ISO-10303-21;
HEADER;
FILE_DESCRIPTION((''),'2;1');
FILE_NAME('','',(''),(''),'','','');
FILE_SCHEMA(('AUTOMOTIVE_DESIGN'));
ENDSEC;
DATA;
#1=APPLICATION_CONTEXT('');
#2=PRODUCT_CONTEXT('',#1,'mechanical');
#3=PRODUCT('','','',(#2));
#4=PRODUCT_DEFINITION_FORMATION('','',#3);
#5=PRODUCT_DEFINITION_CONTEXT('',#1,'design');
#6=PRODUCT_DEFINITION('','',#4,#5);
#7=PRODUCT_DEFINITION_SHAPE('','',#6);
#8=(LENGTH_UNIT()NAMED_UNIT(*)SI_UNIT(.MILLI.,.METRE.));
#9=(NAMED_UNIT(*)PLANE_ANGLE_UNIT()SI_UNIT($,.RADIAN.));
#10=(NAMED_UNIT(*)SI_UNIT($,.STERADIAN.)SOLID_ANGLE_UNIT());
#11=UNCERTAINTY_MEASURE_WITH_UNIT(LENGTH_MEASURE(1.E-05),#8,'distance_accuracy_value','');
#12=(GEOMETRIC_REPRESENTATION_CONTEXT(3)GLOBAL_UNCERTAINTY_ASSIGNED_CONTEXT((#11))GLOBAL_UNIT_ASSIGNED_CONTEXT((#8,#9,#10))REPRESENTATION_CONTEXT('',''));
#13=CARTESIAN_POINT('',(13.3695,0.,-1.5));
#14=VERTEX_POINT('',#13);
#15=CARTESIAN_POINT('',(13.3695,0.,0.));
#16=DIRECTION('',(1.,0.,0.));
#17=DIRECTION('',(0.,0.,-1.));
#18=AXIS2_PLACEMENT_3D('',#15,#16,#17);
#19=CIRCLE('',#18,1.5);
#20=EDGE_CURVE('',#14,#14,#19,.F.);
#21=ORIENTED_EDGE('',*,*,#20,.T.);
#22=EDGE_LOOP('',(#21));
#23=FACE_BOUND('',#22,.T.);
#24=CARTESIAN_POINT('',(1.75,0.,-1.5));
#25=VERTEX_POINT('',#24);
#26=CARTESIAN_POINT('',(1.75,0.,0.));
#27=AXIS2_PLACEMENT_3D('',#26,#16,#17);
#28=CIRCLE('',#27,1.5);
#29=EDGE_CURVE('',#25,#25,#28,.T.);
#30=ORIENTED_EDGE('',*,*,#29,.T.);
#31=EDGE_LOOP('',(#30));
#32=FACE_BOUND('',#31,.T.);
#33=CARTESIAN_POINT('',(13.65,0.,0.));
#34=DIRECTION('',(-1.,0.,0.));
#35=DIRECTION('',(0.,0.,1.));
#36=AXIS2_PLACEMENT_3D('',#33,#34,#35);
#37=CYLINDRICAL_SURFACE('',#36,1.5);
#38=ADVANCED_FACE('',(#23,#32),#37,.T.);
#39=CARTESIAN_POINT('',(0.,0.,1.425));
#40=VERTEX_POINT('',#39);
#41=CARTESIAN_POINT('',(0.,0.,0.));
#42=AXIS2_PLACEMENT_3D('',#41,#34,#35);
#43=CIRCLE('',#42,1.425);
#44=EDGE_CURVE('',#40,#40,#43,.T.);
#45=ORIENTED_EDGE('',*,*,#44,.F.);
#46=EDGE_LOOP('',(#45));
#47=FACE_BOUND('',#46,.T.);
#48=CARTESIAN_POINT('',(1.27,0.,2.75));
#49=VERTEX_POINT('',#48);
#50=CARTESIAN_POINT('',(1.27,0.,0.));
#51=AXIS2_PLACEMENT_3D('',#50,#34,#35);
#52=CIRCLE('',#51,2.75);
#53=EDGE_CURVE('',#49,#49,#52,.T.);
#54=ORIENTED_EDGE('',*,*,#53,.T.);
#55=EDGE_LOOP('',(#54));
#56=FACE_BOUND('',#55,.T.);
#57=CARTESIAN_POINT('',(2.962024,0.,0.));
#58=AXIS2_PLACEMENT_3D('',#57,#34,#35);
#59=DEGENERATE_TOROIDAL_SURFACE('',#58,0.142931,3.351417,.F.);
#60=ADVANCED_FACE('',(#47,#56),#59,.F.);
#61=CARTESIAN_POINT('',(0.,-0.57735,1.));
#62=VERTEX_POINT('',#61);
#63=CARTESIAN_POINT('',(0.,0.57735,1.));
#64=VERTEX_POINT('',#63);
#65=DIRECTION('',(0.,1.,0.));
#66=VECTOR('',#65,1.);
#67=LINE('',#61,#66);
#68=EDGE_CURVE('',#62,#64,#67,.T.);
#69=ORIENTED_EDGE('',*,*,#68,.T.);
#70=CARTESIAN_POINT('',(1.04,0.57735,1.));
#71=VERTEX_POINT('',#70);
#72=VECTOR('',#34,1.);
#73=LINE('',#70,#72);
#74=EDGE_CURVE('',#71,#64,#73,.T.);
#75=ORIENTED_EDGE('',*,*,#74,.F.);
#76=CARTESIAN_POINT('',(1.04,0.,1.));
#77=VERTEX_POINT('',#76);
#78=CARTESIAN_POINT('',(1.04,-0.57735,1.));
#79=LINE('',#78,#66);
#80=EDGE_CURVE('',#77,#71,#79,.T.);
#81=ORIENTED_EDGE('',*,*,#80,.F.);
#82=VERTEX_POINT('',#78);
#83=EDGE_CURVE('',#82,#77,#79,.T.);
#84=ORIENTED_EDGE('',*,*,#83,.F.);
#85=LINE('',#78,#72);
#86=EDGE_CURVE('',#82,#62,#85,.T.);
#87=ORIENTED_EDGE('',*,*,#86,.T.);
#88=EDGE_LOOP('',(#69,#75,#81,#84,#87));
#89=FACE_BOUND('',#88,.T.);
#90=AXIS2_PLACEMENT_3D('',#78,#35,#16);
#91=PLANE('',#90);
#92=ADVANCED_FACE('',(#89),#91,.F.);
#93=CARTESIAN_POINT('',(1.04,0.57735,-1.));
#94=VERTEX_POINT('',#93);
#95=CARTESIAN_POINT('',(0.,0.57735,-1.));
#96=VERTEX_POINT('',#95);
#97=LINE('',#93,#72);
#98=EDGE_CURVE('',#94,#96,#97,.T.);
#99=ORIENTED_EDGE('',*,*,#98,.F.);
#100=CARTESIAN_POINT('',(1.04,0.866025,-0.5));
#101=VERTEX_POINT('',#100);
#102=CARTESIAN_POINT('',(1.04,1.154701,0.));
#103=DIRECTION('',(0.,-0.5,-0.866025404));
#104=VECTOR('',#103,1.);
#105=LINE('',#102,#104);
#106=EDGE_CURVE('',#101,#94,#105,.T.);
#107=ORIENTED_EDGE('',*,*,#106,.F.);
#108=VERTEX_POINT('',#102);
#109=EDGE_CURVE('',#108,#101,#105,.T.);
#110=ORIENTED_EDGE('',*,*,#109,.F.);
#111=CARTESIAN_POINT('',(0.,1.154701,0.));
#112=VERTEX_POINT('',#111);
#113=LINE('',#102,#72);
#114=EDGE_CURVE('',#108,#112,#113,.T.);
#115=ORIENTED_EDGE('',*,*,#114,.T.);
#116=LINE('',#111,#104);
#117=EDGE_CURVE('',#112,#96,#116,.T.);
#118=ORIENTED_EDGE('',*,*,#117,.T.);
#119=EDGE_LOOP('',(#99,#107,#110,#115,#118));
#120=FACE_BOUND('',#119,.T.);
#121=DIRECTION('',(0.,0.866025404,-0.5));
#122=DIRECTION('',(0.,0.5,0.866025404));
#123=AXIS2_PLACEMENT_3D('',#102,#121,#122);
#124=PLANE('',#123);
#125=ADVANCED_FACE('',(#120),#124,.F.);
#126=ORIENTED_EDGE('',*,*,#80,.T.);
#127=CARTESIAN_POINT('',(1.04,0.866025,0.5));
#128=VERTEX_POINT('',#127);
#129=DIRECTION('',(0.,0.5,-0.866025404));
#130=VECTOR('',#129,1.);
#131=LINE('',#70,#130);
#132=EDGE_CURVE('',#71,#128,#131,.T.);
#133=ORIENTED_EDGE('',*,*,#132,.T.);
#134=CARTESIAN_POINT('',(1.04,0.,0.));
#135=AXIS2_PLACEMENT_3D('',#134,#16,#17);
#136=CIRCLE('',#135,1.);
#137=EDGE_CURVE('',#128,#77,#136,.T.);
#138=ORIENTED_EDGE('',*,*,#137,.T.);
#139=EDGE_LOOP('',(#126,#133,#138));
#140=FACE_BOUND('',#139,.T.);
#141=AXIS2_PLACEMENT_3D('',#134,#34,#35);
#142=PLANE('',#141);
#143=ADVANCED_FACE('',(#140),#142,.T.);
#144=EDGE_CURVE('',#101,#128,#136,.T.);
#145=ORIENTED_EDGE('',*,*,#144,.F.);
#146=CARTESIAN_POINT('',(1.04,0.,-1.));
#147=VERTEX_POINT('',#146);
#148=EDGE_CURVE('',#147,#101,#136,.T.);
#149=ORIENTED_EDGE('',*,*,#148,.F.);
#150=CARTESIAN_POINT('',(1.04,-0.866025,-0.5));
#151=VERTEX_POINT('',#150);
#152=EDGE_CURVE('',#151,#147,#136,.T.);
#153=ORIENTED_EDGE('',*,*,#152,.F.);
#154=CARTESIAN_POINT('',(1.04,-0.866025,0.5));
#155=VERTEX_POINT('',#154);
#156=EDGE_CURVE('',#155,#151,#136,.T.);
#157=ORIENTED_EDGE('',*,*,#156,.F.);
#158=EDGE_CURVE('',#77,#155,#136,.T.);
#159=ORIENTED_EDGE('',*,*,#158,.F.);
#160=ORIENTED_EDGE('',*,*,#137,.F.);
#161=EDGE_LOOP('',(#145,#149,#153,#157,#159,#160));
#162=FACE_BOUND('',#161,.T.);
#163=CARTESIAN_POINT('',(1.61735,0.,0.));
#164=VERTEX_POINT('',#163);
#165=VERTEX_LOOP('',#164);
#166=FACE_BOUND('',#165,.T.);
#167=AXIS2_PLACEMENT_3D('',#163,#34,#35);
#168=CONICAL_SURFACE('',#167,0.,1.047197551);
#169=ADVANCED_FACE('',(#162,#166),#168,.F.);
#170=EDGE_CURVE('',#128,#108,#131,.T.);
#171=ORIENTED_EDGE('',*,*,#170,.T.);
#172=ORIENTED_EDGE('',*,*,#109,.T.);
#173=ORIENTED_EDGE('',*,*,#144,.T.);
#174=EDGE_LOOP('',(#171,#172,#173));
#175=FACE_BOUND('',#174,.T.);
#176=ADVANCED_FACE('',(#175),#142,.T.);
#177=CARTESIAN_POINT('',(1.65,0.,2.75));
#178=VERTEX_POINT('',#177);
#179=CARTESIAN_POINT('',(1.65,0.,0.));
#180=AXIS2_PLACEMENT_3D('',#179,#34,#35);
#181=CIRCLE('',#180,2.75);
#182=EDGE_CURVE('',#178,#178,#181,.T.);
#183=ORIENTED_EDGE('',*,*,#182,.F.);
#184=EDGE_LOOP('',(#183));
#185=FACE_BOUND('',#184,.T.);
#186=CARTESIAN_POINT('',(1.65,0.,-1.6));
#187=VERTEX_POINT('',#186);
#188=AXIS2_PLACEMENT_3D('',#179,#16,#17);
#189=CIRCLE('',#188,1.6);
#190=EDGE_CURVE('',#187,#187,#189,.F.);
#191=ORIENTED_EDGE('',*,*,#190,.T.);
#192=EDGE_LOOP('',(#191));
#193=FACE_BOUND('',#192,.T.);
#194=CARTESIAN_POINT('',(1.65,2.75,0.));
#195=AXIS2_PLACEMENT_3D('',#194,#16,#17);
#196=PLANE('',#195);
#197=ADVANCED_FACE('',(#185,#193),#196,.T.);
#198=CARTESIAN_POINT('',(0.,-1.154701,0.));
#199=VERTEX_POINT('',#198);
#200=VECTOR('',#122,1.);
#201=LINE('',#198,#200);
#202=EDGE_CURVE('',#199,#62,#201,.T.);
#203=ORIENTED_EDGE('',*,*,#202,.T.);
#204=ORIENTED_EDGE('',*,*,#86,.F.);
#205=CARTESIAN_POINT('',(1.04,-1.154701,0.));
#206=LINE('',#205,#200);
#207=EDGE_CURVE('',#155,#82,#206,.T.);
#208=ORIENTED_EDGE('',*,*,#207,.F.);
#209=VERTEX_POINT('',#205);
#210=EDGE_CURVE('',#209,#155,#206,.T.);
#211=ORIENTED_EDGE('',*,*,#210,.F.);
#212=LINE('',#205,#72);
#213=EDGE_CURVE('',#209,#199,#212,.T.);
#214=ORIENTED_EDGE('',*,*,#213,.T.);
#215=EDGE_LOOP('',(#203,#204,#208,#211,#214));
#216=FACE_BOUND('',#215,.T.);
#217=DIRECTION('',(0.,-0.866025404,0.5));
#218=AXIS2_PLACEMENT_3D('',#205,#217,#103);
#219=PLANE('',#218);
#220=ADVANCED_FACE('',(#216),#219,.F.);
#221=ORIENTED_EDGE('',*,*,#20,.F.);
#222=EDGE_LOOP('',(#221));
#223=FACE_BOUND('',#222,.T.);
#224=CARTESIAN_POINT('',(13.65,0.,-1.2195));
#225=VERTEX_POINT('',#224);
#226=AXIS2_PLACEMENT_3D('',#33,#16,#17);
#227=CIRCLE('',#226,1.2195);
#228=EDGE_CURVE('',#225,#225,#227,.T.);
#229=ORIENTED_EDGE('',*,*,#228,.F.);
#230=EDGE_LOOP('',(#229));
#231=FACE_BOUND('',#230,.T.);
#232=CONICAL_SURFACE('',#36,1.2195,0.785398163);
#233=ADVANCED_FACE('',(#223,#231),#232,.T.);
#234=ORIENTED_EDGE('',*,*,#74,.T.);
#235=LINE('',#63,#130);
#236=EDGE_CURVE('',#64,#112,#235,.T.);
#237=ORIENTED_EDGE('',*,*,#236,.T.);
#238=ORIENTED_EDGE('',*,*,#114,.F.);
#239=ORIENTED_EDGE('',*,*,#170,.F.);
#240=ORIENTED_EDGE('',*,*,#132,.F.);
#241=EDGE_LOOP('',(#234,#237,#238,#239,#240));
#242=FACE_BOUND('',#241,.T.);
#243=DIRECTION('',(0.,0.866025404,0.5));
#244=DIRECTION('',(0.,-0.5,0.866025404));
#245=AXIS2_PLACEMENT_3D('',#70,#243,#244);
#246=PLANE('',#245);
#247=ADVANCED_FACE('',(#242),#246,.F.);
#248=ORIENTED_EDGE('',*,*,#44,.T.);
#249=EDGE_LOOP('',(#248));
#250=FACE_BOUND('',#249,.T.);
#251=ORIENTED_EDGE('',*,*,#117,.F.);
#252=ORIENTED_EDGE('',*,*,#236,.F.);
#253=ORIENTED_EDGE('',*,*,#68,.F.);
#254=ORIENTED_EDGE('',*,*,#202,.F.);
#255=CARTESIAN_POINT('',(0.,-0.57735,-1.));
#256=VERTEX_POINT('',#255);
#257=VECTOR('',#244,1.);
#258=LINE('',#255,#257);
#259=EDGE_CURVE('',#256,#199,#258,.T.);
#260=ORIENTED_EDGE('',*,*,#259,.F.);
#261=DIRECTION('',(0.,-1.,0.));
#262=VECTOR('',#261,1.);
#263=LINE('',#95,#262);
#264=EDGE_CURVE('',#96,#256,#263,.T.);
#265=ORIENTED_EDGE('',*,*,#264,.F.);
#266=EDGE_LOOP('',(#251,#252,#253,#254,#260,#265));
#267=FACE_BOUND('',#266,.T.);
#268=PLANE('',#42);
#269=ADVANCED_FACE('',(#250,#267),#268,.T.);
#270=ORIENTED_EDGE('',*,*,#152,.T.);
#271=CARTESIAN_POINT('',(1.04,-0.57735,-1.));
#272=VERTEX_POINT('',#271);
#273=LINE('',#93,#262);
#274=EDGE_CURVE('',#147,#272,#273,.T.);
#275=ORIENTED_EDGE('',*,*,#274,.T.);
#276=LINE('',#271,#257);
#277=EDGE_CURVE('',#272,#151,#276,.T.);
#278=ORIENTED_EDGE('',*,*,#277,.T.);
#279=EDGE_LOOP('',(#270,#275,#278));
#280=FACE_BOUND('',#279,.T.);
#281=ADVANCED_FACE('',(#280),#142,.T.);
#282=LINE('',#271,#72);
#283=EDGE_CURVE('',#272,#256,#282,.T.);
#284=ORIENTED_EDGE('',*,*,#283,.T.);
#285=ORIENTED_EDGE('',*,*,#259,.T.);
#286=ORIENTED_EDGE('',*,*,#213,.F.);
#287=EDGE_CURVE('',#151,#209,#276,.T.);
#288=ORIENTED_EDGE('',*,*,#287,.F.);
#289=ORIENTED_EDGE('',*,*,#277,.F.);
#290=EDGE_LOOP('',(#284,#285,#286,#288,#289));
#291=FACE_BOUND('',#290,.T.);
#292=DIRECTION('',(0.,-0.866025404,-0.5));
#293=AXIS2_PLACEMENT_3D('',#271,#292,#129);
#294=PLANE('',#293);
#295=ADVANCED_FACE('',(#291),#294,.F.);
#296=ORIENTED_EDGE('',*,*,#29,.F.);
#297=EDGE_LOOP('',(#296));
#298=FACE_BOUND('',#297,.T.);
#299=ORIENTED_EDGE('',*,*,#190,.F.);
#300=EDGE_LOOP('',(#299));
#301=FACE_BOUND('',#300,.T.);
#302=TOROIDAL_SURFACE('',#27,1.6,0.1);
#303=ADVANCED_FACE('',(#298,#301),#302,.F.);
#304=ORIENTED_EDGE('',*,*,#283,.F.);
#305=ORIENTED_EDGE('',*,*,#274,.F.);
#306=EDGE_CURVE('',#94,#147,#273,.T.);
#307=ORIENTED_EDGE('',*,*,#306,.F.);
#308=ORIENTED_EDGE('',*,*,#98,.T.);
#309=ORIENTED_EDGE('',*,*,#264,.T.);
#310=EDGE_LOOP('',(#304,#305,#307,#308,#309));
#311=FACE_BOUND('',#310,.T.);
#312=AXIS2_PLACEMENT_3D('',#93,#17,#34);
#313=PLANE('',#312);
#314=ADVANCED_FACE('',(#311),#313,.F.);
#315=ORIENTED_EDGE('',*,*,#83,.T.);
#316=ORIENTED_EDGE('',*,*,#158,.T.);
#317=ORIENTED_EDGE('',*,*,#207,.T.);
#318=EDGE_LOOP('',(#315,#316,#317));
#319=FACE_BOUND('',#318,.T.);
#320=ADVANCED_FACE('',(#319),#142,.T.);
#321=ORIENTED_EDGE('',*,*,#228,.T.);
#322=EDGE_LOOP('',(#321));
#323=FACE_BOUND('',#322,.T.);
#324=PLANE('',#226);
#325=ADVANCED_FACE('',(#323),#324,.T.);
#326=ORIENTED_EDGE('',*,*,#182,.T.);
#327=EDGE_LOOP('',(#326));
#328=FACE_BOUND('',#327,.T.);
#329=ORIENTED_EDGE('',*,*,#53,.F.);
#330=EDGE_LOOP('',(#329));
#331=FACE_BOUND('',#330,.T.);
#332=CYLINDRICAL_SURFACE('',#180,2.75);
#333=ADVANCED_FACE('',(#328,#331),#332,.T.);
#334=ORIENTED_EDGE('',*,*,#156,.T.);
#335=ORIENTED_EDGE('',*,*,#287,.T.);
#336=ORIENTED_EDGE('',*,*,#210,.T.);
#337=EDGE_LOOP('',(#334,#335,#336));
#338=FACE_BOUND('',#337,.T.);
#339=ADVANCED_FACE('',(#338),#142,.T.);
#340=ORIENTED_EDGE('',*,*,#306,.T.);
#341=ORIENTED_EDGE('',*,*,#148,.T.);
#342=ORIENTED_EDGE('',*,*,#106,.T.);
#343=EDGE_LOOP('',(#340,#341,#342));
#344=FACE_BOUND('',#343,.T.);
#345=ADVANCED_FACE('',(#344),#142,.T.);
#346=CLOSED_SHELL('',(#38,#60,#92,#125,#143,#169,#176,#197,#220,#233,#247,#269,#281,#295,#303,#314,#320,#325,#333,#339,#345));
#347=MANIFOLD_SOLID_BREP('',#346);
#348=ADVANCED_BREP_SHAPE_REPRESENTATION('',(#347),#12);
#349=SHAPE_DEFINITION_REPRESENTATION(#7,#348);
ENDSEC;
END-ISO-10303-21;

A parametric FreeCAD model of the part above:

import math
import FreeCAD as App
import Part
import Sketcher
from FreeCAD import Vector
Q = App.Units.Quantity


def edges_at(feature, points):
    """Names of the edges that pass closest to the given points."""
    edges = feature.Shape.Edges
    near = lambda p: min(range(len(edges)), key=lambda i: edges[i].distToShape(Part.Vertex(*p))[0])
    return sorted({f"Edge{near(p) + 1}" for p in points})

doc = App.newDocument("Part")
body = doc.addObject("PartDesign::Body", "Body")

# Sketch on XY plane
sketch1 = doc.addObject("Sketcher::SketchObject", "Sketch")
body.addObject(sketch1)
sketch1.AttachmentSupport = (doc.XY_Plane, [""])
sketch1.MapMode = "FlatFace"
sketch1.addGeometry([
    Part.LineSegment(Vector(1.65, 2.75, 0), Vector(1.65, 0, 0)),  # 0
    Part.LineSegment(Vector(1.65, 0, 0), Vector(0, 0, 0)),  # 1
    Part.LineSegment(Vector(0, 0, 0), Vector(0, 1.43, 0)),  # 2
    Part.ArcOfCircle(Part.Circle(Vector(2.96, -0.14, 0), Vector(0, 0, 1), 3.35), math.radians(120), math.radians(152)),  # 3
    Part.LineSegment(Vector(1.27, 2.75, 0), Vector(1.65, 2.75, 0)),  # 4
], False)
sketch1.addConstraint([
    Sketcher.Constraint("Coincident", 0, 2, 1, 1),
    Sketcher.Constraint("Coincident", 1, 2, 2, 1),
    Sketcher.Constraint("Coincident", 2, 2, 3, 2),
    Sketcher.Constraint("Coincident", 3, 1, 4, 1),
    Sketcher.Constraint("Coincident", 4, 2, 0, 1),
    Sketcher.Constraint("Vertical", 0),
    Sketcher.Constraint("Horizontal", 1),
    Sketcher.Constraint("Vertical", 2),
    Sketcher.Constraint("Horizontal", 4),
    Sketcher.Constraint("Coincident", 1, 2, -1, 1),
    Sketcher.Constraint("DistanceX", 1, 2, 1, 1, Q("1.65 mm")),
    Sketcher.Constraint("DistanceX", 4, 1, 4, 2, Q("0.38 mm")),
    Sketcher.Constraint("DistanceY", 0, 2, 0, 1, Q("2.75 mm")),
    Sketcher.Constraint("DistanceY", 2, 1, 2, 2, Q("1.425 mm")),
    Sketcher.Constraint("Radius", 3, Q("3.351417 mm")),
])
revolution = doc.addObject("PartDesign::Revolution", "Revolution")
body.addObject(revolution)
revolution.Profile = sketch1
revolution.ReferenceAxis = (sketch1, ["H_Axis"])
revolution.Angle = 360

# Sketch on YZ plane
sketch2 = doc.addObject("Sketcher::SketchObject", "Sketch001")
body.addObject(sketch2)
sketch2.AttachmentSupport = (doc.YZ_Plane, [""])
sketch2.MapMode = "FlatFace"
sketch2.addGeometry([
    Part.LineSegment(Vector(0.6, -1, 0), Vector(-0.6, -1, 0)),  # 0
    Part.LineSegment(Vector(-0.6, -1, 0), Vector(-1.2, 0, 0)),  # 1
    Part.LineSegment(Vector(-1.2, 0, 0), Vector(-0.6, 1, 0)),  # 2
    Part.LineSegment(Vector(-0.6, 1, 0), Vector(0.6, 1, 0)),  # 3
    Part.LineSegment(Vector(0.6, 1, 0), Vector(1.2, 0, 0)),  # 4
    Part.LineSegment(Vector(1.2, 0, 0), Vector(0.6, -1, 0)),  # 5
], False)
sketch2.addConstraint([
    Sketcher.Constraint("Coincident", 0, 2, 1, 1),
    Sketcher.Constraint("Coincident", 1, 2, 2, 1),
    Sketcher.Constraint("Coincident", 2, 2, 3, 1),
    Sketcher.Constraint("Coincident", 3, 2, 4, 1),
    Sketcher.Constraint("Coincident", 4, 2, 5, 1),
    Sketcher.Constraint("Coincident", 5, 2, 0, 1),
    Sketcher.Constraint("Horizontal", 0),
    Sketcher.Constraint("Horizontal", 3),
    Sketcher.Constraint("Symmetric", 0, 2, 3, 2, -1, 1),
    Sketcher.Constraint("Symmetric", 1, 2, 4, 2, -1, 1),
    Sketcher.Constraint("PointOnObject", 1, 2, -1),
    Sketcher.Constraint("Parallel", 2, 5),
    Sketcher.Constraint("Vertical", 0, 2, 2, 2),
    Sketcher.Constraint("Angle", 1, Q("120 deg")),
    Sketcher.Constraint("DistanceY", 0, 2, -1, 1, Q("1 mm")),
    Sketcher.Constraint("DistanceX", 0, 2, 0, 1, Q("1.154701 mm")),
])
pocket1 = doc.addObject("PartDesign::Pocket", "Pocket")
body.addObject(pocket1)
pocket1.Profile = sketch2
pocket1.Length = 1.04
pocket1.Reversed = True

# Sketch on XY plane
sketch3 = doc.addObject("Sketcher::SketchObject", "Sketch002")
body.addObject(sketch3)
sketch3.AttachmentSupport = (doc.XY_Plane, [""])
sketch3.MapMode = "FlatFace"
sketch3.addGeometry([
    Part.LineSegment(Vector(1, 1, 0), Vector(1, 0, 0)),
    Part.LineSegment(Vector(1, 0, 0), Vector(1.6, 0, 0)),
    Part.LineSegment(Vector(1.6, 0, 0), Vector(1, 1, 0)),
], False)
sketch3.addConstraint([
    Sketcher.Constraint("Coincident", 0, 2, 1, 1),
    Sketcher.Constraint("Coincident", 1, 2, 2, 1),
    Sketcher.Constraint("Coincident", 2, 2, 0, 1),
    Sketcher.Constraint("Vertical", 0),
    Sketcher.Constraint("Horizontal", 1),
    Sketcher.Constraint("PointOnObject", 0, 2, -1),
    Sketcher.Constraint("DistanceY", 0, 2, 0, 1, Q("1 mm")),
    Sketcher.Constraint("Angle", 2, Q("120 deg")),
    Sketcher.Constraint("DistanceX", -1, 1, 0, 2, Q("1.04 mm")),
])
groove = doc.addObject("PartDesign::Groove", "Groove")
body.addObject(groove)
groove.Profile = sketch3
groove.ReferenceAxis = (sketch3, ["H_Axis"])
groove.Angle = 360

# Sketch on YZ plane
sketch4 = doc.addObject("Sketcher::SketchObject", "Sketch003")
body.addObject(sketch4)
sketch4.AttachmentSupport = (doc.YZ_Plane, [""])
sketch4.MapMode = "FlatFace"
sketch4.AttachmentOffset = App.Placement(Vector(0, 0, 1.65), App.Rotation())
sketch4.addGeometry(Part.Circle(Vector(0, 0, 0), Vector(0, 0, 1), 1.5), False)
sketch4.addConstraint([
    Sketcher.Constraint("Coincident", 0, 3, -1, 1),
    Sketcher.Constraint("Diameter", 0, Q("3 mm")),
])
pad1 = doc.addObject("PartDesign::Pad", "Pad")
body.addObject(pad1)
pad1.Profile = sketch4
pad1.Length = 12
doc.recompute()

fillet = doc.addObject("PartDesign::Fillet", "Fillet")
body.addObject(fillet)
fillet.Base = (pad1, edges_at(pad1, [(1.65, 0, 1.5)]))
fillet.Radius = 0.1
doc.recompute()

chamfer = doc.addObject("PartDesign::Chamfer", "Chamfer")
body.addObject(chamfer)
chamfer.Base = (fillet, edges_at(fillet, [(13.65, 0, 1.5)]))
chamfer.Size = 0.2805

doc.recompute()
